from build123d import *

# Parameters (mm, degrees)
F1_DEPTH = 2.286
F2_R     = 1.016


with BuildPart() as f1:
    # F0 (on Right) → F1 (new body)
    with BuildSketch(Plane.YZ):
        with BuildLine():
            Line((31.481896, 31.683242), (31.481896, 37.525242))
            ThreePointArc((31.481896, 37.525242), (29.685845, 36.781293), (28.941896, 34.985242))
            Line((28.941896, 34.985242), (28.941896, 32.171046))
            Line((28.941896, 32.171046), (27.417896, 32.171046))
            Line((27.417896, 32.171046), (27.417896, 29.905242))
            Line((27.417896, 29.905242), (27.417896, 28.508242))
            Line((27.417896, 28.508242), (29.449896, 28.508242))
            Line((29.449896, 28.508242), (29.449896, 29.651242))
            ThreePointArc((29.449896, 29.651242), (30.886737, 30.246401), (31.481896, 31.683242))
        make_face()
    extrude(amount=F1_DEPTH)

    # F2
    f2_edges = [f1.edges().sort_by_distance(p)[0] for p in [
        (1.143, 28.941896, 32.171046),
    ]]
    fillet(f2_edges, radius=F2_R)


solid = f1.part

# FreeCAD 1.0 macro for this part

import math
import FreeCAD as App
import Part
import Sketcher
from FreeCAD import Vector
Q = App.Units.Quantity


def edges_at(feature, points):
    """Names of the edges that pass closest to the given points."""
    edges = feature.Shape.Edges
    near = lambda p: min(range(len(edges)), key=lambda i: edges[i].distToShape(Part.Vertex(*p))[0])
    return sorted({f"Edge{near(p) + 1}" for p in points})

doc = App.newDocument("Part")
body = doc.addObject("PartDesign::Body", "Body")

# Sketch on YZ plane
sketch1 = doc.addObject("Sketcher::SketchObject", "Sketch")
body.addObject(sketch1)
sketch1.AttachmentSupport = (doc.YZ_Plane, [""])
sketch1.MapMode = "FlatFace"
sketch1.addGeometry([
    Part.LineSegment(Vector(31.481896, 31.683242, 0), Vector(31.481896, 37.525242, 0)),  # 0
    Part.ArcOfCircle(Part.Circle(Vector(31.481897, 34.985241, 0), Vector(0, 0, 1), 2.540001), math.radians(90.000017), math.radians(179.999983)),  # 1
    Part.LineSegment(Vector(28.941896, 34.985242, 0), Vector(28.941896, 32.171046, 0)),  # 2
    Part.LineSegment(Vector(28.941896, 32.171046, 0), Vector(27.417896, 32.171046, 0)),  # 3
    Part.LineSegment(Vector(27.417896, 32.171046, 0), Vector(27.417896, 28.508242, 0)),  # 4
    Part.LineSegment(Vector(27.417896, 28.508242, 0), Vector(29.449896, 28.508242, 0)),  # 5
    Part.LineSegment(Vector(29.449896, 28.508242, 0), Vector(29.449896, 29.651242, 0)),  # 6
    Part.ArcOfCircle(Part.Circle(Vector(29.449896, 31.683242, 0), Vector(0, 0, 1), 2.032), math.radians(-90.000002), math.radians(0.000002)),  # 7
], False)
sketch1.addConstraint([
    Sketcher.Constraint("Coincident", 0, 2, 1, 1),
    Sketcher.Constraint("Tangent", 1, 2, 2, 1),
    Sketcher.Constraint("Coincident", 2, 2, 3, 1),
    Sketcher.Constraint("Coincident", 3, 2, 4, 1),
    Sketcher.Constraint("Coincident", 4, 2, 5, 1),
    Sketcher.Constraint("Coincident", 5, 2, 6, 1),
    Sketcher.Constraint("Coincident", 6, 2, 7, 1),
    Sketcher.Constraint("Tangent", 7, 2, 0, 1),
    Sketcher.Constraint("Vertical", 0),
    Sketcher.Constraint("Vertical", 2),
    Sketcher.Constraint("Horizontal", 3),
    Sketcher.Constraint("Vertical", 4),
    Sketcher.Constraint("Horizontal", 5),
    Sketcher.Constraint("Vertical", 6),
    Sketcher.Constraint("Vertical", 1, 3, 0, 2),
    Sketcher.Constraint("Vertical", 7, 3, 5, 2),
    Sketcher.Constraint("Radius", 1, Q("0.1 in")),
    Sketcher.Constraint("Radius", 7, Q("0.08 in")),
    Sketcher.Constraint("DistanceX", 3, 2, 3, 1, Q("0.06 in")),
    Sketcher.Constraint("DistanceY", 0, 1, 0, 2, Q("0.23 in")),
    Sketcher.Constraint("DistanceY", 6, 1, 6, 2, Q("0.045 in")),
    Sketcher.Constraint("DistanceY", 2, 2, 2, 1, 2.814196),
    Sketcher.Constraint("DistanceY", -1, 1, 1, 3, 34.985241),
    Sketcher.Constraint("DistanceX", -1, 1, 1, 3, 31.481897),
])
pad1 = doc.addObject("PartDesign::Pad", "Pad")
body.addObject(pad1)
pad1.Profile = sketch1
pad1.Length = Q("0.09 in")
doc.recompute()

fillet = doc.addObject("PartDesign::Fillet", "Fillet")
body.addObject(fillet)
fillet.Base = (pad1, edges_at(pad1, [(1.143, 28.942, 32.171)]))
fillet.Radius = Q("0.04 in")

doc.recompute()
